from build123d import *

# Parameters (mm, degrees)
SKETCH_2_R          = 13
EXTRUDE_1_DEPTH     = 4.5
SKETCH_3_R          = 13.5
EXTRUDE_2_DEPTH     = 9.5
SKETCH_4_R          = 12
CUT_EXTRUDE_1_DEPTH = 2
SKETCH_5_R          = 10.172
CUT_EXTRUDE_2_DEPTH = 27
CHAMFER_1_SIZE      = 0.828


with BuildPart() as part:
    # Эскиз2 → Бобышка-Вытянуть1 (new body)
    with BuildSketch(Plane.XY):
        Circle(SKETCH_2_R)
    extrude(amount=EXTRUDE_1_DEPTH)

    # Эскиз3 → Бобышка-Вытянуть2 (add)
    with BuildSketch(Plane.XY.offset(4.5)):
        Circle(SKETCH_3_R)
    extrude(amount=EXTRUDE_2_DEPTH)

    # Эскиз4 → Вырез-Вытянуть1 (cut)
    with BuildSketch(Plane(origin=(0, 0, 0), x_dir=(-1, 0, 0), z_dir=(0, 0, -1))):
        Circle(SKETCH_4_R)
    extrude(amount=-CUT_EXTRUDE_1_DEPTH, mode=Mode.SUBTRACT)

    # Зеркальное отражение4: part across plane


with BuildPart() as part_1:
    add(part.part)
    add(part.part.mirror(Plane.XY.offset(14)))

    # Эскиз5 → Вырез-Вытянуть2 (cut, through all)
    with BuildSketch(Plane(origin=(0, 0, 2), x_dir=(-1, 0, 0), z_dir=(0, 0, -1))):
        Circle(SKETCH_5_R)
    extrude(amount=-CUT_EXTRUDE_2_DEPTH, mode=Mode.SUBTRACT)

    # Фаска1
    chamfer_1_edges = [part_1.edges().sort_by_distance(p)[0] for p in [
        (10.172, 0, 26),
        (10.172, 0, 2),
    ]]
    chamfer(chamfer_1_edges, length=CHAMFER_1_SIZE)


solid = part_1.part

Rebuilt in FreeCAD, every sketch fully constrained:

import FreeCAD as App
import Part
import Sketcher


def edges_at(feature, points):
    """Names of the edges that pass closest to the given points."""
    edges = feature.Shape.Edges
    near = lambda p: min(range(len(edges)), key=lambda i: edges[i].distToShape(Part.Vertex(*p))[0])
    return sorted({f"Edge{near(p) + 1}" for p in points})

doc = App.newDocument("Part")
body = doc.addObject("PartDesign::Body", "Body")

# Sketch on XY plane
sketch1 = body.newObject("Sketcher::SketchObject", "Sketch")
sketch1.AttachmentSupport = (doc.getObject("XY_Plane"), [""])
sketch1.MapMode = "FlatFace"
sketch1.addGeometry(Part.Circle(App.Vector(0, 0, 0), App.Vector(0, 0, 1), 13), False)
sketch1.addConstraint([
    Sketcher.Constraint("Coincident", 0, 3, -1, 1),
    Sketcher.Constraint("Diameter", 0, 26.0),
])
pad1 = body.newObject("PartDesign::Pad", "Pad")
pad1.Profile = sketch1
pad1.Length = 4.5

# Sketch on XY plane
sketch2 = body.newObject("Sketcher::SketchObject", "Sketch001")
sketch2.AttachmentSupport = (doc.getObject("XY_Plane"), [""])
sketch2.MapMode = "FlatFace"
sketch2.AttachmentOffset = App.Placement(App.Vector(0, 0, 4.5), App.Rotation())
sketch2.addGeometry(Part.Circle(App.Vector(0, 0, 0), App.Vector(0, 0, 1), 14), False)
sketch2.addConstraint([
    Sketcher.Constraint("Coincident", 0, 3, -1, 1),
    Sketcher.Constraint("Diameter", 0, 27.0),
])
pad2 = body.newObject("PartDesign::Pad", "Pad001")
pad2.Profile = sketch2
pad2.Length = 9.5

# Sketch on XY plane
sketch3 = body.newObject("Sketcher::SketchObject", "Sketch002")
sketch3.AttachmentSupport = (doc.getObject("XY_Plane"), [""])
sketch3.MapMode = "FlatFace"
sketch3.addGeometry(Part.Circle(App.Vector(0, 0, 0), App.Vector(0, 0, 1), 12), False)
sketch3.addConstraint([
    Sketcher.Constraint("Coincident", 0, 3, -1, 1),
    Sketcher.Constraint("Diameter", 0, 24.0),
])
pocket1 = body.newObject("PartDesign::Pocket", "Pocket")
pocket1.Profile = sketch3
pocket1.Length = 2
pocket1.Reversed = True
body2 = doc.addObject("PartDesign::Body", "Body001")
doc.recompute()

body2.BaseFeature = body
doc.recompute()

mirroring = doc.addObject("Part::Mirroring", "Mirroring")
mirroring.Source = body
mirroring.Base = App.Vector(0, 0, 14)
mirroring.Normal = App.Vector(0, 0, 1)
body3 = doc.addObject("PartDesign::Body", "Body002")
body3.BaseFeature = mirroring
boolean = body2.newObject("PartDesign::Boolean", "Boolean")
boolean.Type = "Fuse"
boolean.addObjects([body3])
doc.recompute()

# Sketch on XY plane
sketch4 = body2.newObject("Sketcher::SketchObject", "Sketch003")
sketch4.AttachmentSupport = (doc.getObject("XY_Plane001"), [""])
sketch4.MapMode = "FlatFace"
sketch4.AttachmentOffset = App.Placement(App.Vector(0, 0, 2), App.Rotation())
sketch4.addGeometry(Part.Circle(App.Vector(0, 0, 0), App.Vector(0, 0, 1), 10), False)
sketch4.addConstraint([
    Sketcher.Constraint("Coincident", 0, 3, -1, 1),
    Sketcher.Constraint("Diameter", 0, 20.344),
])
pocket2 = body2.newObject("PartDesign::Pocket", "Pocket001")
pocket2.Profile = sketch4
pocket2.Type = "ThroughAll"
pocket2.Reversed = True
doc.recompute()

chamfer = body2.newObject("PartDesign::Chamfer", "Chamfer")
chamfer.Base = (pocket2, edges_at(pocket2, [(10.172, 0, 26), (10.172, 0, 2)]))
chamfer.Size = 0.828
mirroring.Visibility = False

doc.recompute()
